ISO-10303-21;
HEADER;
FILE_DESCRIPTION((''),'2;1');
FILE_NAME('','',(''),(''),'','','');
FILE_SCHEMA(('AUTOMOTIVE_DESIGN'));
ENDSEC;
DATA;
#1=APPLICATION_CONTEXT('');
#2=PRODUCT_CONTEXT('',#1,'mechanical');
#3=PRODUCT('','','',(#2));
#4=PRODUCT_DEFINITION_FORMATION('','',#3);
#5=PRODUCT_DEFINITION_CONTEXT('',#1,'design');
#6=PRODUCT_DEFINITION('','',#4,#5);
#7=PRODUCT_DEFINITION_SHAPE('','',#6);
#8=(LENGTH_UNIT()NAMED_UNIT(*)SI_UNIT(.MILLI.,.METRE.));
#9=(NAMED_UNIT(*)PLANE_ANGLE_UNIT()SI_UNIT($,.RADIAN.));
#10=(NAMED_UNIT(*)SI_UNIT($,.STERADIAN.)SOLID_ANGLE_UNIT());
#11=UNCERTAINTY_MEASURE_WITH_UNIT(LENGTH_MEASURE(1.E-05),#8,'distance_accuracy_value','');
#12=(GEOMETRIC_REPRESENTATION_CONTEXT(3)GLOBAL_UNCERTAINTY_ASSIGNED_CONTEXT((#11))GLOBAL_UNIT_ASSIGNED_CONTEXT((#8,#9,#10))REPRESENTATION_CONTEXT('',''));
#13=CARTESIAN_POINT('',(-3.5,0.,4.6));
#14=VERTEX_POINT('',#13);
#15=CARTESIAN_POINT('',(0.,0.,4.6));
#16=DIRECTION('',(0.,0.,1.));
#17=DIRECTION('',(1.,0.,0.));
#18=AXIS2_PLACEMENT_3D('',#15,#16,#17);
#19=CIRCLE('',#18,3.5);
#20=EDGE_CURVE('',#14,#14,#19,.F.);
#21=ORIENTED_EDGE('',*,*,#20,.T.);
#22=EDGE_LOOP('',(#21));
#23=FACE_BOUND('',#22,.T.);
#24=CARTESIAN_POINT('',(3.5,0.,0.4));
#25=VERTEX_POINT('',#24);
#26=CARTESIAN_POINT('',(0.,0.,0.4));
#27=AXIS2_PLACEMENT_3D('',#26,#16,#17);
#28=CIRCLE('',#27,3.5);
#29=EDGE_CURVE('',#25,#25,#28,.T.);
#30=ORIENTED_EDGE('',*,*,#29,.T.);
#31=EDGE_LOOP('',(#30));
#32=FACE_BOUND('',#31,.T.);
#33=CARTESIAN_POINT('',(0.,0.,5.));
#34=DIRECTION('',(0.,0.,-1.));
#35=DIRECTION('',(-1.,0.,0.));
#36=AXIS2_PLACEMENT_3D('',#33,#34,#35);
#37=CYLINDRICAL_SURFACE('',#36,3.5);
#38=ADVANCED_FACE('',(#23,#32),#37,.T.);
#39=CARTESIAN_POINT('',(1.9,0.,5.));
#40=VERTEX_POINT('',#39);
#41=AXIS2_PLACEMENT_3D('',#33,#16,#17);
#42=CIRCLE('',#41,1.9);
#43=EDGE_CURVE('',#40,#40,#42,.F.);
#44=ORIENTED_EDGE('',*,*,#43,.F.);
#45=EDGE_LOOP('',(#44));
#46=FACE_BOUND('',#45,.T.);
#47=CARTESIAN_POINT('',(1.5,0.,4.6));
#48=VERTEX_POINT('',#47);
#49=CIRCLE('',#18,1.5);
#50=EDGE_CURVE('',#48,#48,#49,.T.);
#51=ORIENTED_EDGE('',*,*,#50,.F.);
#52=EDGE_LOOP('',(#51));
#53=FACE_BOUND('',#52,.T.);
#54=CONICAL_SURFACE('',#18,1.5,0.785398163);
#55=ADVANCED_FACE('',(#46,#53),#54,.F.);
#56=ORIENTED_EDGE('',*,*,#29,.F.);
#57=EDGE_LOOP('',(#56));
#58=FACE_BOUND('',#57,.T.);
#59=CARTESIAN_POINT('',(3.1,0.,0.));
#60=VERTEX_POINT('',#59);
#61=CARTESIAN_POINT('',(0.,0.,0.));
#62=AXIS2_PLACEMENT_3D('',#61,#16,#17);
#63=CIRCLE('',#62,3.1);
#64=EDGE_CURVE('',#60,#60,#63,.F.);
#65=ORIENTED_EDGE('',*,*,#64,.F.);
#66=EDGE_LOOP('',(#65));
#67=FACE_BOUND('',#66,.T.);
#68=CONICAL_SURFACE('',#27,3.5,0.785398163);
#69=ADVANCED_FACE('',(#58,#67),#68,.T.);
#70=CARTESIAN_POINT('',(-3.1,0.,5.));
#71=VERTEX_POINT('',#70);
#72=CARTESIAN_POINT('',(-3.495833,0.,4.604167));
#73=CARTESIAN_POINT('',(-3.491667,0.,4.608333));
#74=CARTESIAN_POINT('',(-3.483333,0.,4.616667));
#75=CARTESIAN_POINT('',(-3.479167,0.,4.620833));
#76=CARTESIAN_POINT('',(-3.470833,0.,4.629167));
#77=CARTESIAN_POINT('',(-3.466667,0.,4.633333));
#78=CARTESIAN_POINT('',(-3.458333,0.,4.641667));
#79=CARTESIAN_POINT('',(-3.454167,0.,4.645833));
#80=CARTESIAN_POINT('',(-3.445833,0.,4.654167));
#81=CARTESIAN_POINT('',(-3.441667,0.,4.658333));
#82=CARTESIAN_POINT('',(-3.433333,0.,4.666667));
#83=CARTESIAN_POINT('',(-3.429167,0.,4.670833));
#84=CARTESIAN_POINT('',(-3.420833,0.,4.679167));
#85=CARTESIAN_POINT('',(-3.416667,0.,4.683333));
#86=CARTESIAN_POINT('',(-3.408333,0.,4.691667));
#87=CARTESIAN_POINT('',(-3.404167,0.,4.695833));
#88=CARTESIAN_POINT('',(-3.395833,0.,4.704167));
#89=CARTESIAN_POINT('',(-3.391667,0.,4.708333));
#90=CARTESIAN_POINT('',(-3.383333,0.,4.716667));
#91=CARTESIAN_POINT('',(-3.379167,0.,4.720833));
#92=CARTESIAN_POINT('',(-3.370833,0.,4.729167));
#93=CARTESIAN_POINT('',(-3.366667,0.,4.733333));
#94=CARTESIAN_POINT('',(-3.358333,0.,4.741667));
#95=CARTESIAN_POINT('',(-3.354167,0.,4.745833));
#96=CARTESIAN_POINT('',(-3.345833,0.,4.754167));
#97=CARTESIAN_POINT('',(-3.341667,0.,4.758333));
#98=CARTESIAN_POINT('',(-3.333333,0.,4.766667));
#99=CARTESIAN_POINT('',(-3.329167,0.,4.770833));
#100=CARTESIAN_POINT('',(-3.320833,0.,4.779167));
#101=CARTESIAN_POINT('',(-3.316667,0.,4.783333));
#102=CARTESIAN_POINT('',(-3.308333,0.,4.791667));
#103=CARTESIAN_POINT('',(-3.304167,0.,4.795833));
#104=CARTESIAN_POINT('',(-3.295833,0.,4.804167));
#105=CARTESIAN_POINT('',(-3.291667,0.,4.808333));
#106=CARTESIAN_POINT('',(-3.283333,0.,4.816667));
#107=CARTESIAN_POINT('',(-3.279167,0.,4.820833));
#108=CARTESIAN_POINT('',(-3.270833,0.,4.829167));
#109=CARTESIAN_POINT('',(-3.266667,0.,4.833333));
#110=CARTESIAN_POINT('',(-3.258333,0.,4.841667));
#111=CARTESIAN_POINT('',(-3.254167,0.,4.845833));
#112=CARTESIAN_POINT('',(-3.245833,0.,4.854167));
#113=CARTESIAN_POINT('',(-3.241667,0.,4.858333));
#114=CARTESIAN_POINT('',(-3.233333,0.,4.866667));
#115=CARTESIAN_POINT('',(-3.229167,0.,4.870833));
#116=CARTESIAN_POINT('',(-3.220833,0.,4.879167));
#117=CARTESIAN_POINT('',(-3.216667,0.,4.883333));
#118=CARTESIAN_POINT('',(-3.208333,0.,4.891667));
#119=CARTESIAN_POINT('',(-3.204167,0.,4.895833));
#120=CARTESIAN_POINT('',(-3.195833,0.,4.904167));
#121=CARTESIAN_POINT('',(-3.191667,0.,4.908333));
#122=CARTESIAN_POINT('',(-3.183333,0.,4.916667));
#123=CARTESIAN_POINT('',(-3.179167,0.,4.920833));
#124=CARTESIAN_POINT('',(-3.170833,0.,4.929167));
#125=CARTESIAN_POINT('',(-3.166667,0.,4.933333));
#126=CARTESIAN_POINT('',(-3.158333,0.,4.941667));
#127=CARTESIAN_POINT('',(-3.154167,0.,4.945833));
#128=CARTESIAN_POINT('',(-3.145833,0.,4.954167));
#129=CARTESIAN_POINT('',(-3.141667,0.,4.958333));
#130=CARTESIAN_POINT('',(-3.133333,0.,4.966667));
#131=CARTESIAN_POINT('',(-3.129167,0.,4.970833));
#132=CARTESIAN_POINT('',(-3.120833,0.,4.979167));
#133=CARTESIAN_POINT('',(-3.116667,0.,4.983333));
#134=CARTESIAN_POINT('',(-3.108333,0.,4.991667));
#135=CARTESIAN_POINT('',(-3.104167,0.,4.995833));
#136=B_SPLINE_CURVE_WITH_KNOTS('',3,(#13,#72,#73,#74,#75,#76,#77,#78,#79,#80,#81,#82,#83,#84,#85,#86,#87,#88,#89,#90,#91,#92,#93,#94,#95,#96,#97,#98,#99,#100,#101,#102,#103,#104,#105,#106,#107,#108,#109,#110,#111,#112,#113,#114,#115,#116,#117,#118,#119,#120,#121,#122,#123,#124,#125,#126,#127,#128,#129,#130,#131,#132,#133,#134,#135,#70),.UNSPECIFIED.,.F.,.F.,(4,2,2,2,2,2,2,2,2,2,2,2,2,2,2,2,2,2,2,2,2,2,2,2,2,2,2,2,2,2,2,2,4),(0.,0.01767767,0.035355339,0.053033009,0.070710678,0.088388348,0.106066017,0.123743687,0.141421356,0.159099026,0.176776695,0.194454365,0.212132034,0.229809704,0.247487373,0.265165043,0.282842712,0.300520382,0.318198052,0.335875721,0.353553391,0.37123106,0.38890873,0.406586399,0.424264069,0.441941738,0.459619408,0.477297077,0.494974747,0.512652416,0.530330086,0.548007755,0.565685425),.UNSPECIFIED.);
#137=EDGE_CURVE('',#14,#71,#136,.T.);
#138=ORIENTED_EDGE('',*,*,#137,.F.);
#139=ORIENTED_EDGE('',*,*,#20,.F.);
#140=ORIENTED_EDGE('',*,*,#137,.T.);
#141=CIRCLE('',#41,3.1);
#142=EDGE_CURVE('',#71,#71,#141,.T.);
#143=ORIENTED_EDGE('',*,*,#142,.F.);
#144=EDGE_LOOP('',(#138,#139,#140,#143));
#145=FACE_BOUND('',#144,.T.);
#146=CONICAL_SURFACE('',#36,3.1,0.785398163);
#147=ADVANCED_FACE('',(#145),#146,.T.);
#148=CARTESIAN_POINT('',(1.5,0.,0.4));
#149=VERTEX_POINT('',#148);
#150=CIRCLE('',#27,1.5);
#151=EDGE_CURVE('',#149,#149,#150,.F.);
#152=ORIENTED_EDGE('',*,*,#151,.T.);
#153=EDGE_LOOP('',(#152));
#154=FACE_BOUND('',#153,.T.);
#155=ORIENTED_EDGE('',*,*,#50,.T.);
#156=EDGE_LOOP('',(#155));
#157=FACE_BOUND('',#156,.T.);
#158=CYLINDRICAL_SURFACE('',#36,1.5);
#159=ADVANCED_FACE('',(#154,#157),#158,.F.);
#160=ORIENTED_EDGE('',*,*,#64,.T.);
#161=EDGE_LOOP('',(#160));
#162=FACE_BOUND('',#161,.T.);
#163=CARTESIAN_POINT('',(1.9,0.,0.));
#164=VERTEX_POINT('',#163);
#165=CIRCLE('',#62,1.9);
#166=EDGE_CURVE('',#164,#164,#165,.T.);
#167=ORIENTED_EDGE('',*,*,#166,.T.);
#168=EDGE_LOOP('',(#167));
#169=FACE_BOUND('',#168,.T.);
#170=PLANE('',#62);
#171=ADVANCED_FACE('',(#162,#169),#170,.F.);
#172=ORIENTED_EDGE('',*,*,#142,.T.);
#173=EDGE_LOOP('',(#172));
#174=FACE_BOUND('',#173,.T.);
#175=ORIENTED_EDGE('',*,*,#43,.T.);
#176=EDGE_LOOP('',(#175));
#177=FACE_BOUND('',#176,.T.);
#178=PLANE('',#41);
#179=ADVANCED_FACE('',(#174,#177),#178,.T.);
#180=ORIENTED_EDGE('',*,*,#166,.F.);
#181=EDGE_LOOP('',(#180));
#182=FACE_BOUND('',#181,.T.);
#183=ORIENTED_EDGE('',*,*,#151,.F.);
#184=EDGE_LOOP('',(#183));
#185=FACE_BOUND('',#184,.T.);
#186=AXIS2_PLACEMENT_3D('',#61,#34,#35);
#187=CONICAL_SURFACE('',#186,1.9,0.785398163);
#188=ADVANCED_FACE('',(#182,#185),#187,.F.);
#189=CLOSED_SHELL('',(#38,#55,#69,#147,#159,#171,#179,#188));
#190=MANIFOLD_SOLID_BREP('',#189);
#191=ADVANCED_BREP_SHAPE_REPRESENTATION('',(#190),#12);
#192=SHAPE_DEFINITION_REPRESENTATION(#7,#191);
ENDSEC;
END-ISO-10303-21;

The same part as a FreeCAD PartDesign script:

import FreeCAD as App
import Part
import Sketcher
from FreeCAD import Vector
Q = App.Units.Quantity


def edges_at(feature, points):
    """Names of the edges that pass closest to the given points."""
    edges = feature.Shape.Edges
    near = lambda p: min(range(len(edges)), key=lambda i: edges[i].distToShape(Part.Vertex(*p))[0])
    return sorted({f"Edge{near(p) + 1}" for p in points})

doc = App.newDocument("Part")
body = doc.addObject("PartDesign::Body", "Body")

# Sketch on XY plane
sketch1 = doc.addObject("Sketcher::SketchObject", "Sketch")
body.addObject(sketch1)
sketch1.AttachmentSupport = (doc.XY_Plane, [""])
sketch1.MapMode = "FlatFace"
sketch1.addGeometry([
    Part.Circle(Vector(0, 0, 0), Vector(0, 0, 1), 3.5),
    Part.Circle(Vector(0, 0, 0), Vector(0, 0, 1), 1.5),
], False)
sketch1.addConstraint([
    Sketcher.Constraint("Coincident", 0, 3, -1, 1),
    Sketcher.Constraint("Coincident", 1, 3, -1, 1),
    Sketcher.Constraint("Diameter", 0, Q("7 mm")),
    Sketcher.Constraint("Diameter", 1, Q("3 mm")),
])
pad1 = doc.addObject("PartDesign::Pad", "Pad")
body.addObject(pad1)
pad1.Profile = sketch1
pad1.Length = 5
doc.recompute()

chamfer = doc.addObject("PartDesign::Chamfer", "Chamfer")
body.addObject(chamfer)
chamfer.Base = (pad1, edges_at(pad1, [
    (-3.5, 0, 0),
    (-3.5, 0, 5),
    (-1.5, 0, 0),
    (-1.5, 0, 5),
]))
chamfer.Size = 0.4

doc.recompute()
